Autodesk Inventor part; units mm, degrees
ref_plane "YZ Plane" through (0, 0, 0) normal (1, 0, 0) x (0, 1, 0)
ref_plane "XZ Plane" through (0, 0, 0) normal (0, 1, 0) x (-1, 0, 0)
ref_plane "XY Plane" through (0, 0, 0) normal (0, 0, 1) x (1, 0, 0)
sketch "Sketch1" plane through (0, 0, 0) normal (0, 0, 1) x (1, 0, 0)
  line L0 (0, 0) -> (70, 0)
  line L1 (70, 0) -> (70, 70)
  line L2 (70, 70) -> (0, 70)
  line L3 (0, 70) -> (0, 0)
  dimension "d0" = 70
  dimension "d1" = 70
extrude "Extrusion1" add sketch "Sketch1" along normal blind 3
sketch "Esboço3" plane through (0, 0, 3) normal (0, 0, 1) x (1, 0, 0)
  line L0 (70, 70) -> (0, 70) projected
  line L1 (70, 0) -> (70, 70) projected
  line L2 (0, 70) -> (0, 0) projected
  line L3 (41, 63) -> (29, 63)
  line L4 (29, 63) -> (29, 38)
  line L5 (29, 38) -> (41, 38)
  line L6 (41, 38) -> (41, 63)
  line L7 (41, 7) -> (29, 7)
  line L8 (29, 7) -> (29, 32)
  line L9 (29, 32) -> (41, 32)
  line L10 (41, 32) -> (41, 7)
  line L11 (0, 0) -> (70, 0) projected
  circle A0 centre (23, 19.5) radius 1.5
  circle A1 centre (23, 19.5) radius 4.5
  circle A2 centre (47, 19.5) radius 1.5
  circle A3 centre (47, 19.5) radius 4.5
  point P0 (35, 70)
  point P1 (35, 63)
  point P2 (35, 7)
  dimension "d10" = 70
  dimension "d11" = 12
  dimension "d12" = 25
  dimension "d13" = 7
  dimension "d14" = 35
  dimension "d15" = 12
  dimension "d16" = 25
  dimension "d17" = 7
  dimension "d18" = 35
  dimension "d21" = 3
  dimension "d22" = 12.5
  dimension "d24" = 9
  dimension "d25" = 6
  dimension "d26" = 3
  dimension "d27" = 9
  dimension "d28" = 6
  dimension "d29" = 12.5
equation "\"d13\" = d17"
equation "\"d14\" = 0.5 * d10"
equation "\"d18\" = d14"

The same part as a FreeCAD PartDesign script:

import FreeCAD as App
import Part
import Sketcher
from FreeCAD import Vector
Q = App.Units.Quantity


def add_polygon(sketch, points):
    """Adds a closed chain of lines whose ends are joined by coincident constraints."""
    first, n = sketch.GeometryCount, len(points)
    for a, b in zip(points, points[1:] + points[:1]):
        sketch.addGeometry(Part.LineSegment(App.Vector(*a, 0), App.Vector(*b, 0)), False)
    for i in range(n):
        sketch.addConstraint(Sketcher.Constraint("Coincident", first + i, 2, first + (i + 1) % n, 1))

doc = App.newDocument("Part")
body = doc.addObject("PartDesign::Body", "Body")

# Sketch on XY plane
sketch1 = doc.addObject("Sketcher::SketchObject", "Sketch")
body.addObject(sketch1)
sketch1.AttachmentSupport = (doc.XY_Plane, [""])
sketch1.MapMode = "FlatFace"
add_polygon(sketch1, [(0, 70), (0, 0), (70, 0), (70, 70)])  # lines 0-3
sketch1.addConstraint([
    Sketcher.Constraint("Vertical", 0),
    Sketcher.Constraint("Horizontal", 1),
    Sketcher.Constraint("Vertical", 2),
    Sketcher.Constraint("Horizontal", 3),
    Sketcher.Constraint("Coincident", 0, 2, -1, 1),
    Sketcher.Constraint("Equal", 3, 0),
    Sketcher.Constraint("DistanceX", 1, 1, 1, 2, Q("70 mm")),
])
pad1 = doc.addObject("PartDesign::Pad", "Pad")
body.addObject(pad1)
pad1.Profile = sketch1
pad1.Length = 3

doc.recompute()
